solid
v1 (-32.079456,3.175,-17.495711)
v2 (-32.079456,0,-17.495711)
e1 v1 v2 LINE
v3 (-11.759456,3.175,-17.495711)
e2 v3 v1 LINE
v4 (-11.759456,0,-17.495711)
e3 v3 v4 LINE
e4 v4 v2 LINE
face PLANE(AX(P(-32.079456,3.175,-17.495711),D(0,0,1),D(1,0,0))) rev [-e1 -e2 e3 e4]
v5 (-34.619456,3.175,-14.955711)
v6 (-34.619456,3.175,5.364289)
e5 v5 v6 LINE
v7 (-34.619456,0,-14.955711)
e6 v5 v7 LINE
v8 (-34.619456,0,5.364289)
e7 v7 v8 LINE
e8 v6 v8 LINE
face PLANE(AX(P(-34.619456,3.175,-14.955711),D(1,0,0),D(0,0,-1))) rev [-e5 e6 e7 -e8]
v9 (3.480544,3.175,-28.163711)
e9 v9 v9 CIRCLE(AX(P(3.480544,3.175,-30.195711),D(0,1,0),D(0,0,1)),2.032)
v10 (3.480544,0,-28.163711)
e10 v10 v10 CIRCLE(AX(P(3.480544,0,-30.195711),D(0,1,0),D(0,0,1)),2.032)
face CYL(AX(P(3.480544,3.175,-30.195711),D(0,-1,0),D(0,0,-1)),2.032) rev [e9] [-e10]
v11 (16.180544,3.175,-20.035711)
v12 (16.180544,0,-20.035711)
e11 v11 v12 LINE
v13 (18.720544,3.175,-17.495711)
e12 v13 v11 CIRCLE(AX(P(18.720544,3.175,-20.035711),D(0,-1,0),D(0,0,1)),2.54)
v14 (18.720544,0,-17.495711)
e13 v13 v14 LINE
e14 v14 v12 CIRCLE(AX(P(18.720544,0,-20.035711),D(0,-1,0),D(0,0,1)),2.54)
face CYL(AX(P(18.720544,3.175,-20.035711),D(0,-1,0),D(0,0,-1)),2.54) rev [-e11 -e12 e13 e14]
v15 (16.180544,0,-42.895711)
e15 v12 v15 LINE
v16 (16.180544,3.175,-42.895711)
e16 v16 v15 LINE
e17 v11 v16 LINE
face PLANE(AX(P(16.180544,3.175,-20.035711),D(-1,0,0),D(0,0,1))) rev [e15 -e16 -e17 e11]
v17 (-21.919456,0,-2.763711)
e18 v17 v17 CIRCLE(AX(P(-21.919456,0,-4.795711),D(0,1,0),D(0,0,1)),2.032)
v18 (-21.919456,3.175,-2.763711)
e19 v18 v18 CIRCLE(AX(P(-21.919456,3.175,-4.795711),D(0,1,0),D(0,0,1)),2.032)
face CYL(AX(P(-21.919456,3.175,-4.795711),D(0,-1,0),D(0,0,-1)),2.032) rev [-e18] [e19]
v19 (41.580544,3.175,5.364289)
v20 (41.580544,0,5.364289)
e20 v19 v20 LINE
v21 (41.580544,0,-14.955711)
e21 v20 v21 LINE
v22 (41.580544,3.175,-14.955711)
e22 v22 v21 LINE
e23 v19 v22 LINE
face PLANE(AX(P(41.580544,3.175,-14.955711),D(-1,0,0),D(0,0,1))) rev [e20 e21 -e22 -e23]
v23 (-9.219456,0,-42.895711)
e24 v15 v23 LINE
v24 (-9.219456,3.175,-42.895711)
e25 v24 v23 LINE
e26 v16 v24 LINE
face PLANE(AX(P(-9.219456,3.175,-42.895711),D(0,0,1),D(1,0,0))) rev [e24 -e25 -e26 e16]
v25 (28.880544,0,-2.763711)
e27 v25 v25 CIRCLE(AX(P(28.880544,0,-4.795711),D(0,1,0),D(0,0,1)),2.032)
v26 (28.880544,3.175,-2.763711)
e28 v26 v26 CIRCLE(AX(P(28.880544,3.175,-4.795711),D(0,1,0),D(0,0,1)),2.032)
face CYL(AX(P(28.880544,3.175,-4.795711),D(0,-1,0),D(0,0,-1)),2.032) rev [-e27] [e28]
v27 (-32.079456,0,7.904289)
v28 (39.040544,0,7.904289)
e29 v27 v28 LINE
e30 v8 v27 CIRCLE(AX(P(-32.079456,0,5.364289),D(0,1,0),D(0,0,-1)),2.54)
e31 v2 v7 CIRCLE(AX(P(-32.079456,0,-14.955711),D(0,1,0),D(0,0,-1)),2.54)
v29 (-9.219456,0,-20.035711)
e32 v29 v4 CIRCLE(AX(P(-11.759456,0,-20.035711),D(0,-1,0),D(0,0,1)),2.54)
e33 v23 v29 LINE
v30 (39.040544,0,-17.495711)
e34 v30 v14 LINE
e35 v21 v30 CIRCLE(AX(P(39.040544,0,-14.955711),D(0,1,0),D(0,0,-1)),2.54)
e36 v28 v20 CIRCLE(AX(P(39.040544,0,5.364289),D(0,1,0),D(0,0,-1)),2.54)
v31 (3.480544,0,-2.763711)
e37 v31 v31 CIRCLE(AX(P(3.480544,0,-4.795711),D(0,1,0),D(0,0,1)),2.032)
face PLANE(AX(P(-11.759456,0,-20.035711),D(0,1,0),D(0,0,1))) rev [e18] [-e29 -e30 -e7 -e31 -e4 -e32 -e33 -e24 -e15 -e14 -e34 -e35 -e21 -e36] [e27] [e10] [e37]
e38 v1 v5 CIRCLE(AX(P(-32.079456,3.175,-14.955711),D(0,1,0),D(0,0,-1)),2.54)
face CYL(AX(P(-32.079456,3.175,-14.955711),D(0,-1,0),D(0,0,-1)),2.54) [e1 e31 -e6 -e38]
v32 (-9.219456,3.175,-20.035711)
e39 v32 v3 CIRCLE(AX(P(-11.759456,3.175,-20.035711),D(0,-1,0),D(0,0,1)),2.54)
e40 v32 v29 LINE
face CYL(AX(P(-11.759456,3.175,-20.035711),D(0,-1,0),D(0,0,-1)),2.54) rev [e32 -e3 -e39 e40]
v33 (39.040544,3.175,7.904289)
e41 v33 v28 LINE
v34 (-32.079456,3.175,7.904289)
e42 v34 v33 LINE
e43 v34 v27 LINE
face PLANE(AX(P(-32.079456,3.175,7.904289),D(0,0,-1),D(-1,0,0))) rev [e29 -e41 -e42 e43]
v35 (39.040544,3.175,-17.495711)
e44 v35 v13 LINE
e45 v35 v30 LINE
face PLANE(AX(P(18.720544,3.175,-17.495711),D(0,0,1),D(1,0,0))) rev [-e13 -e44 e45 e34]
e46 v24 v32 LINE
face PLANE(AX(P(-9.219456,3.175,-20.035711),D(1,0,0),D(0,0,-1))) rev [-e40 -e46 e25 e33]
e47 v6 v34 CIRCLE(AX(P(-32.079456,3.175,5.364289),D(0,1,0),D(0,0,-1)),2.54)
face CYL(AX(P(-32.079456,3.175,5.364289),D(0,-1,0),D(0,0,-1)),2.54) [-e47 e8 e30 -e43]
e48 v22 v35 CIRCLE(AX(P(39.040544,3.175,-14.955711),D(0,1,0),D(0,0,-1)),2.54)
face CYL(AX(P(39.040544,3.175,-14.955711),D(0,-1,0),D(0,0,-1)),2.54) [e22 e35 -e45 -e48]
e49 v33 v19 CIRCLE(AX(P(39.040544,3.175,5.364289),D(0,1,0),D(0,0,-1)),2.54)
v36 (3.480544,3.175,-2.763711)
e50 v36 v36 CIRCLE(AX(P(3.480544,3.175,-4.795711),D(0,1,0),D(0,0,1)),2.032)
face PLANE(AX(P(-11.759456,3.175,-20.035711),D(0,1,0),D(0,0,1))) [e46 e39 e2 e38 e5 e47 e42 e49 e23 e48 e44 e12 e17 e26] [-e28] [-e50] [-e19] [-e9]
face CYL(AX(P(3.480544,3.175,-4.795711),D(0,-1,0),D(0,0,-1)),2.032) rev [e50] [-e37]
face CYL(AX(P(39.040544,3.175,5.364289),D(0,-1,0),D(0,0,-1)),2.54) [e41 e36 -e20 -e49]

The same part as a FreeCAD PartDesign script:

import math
import FreeCAD as App
import Part
import Sketcher

V = App.Vector
Q = App.Units.Quantity

doc = App.newDocument("Part")
body = doc.addObject("PartDesign::Body", "Body")

# Sketch on XZ plane
sketch1 = body.newObject("Sketcher::SketchObject", "Sketch")
sketch1.AttachmentSupport = (doc.getObject("XZ_Plane"), [""])
sketch1.MapMode = "FlatFace"
sketch1.addGeometry(Part.LineSegment(V(39, -17.5, 0), V(18.7, -17.5, 0)), False)
sketch1.addGeometry(Part.ArcOfCircle(Part.Circle(V(18.7, -20, 0), V(0, 0, 1), 2.5), math.radians(90), math.radians(180)), False)
sketch1.addGeometry(Part.LineSegment(V(16.2, -20, 0), V(16.2, -42.9, 0)), False)
sketch1.addGeometry(Part.LineSegment(V(16.2, -42.9, 0), V(-9.2, -42.9, 0)), False)
sketch1.addGeometry(Part.LineSegment(V(-9.2, -42.9, 0), V(-9.2, -20, 0)), False)
sketch1.addGeometry(Part.ArcOfCircle(Part.Circle(V(-11.8, -20, 0), V(0, 0, 1), 2.5), math.radians(0), math.radians(90)), False)
sketch1.addGeometry(Part.LineSegment(V(-11.8, -17.5, 0), V(-32.1, -17.5, 0)), False)
sketch1.addGeometry(Part.ArcOfCircle(Part.Circle(V(-32.1, -15, 0), V(0, 0, 1), 2.5), math.radians(-180), math.radians(-90)), False)
sketch1.addGeometry(Part.LineSegment(V(-34.6, -15, 0), V(-34.6, 5.4, 0)), False)
sketch1.addGeometry(Part.ArcOfCircle(Part.Circle(V(-32.1, 5.4, 0), V(0, 0, 1), 2.5), math.radians(90), math.radians(180)), False)
sketch1.addGeometry(Part.LineSegment(V(-32.1, 7.9, 0), V(39, 7.9, 0)), False)
sketch1.addGeometry(Part.ArcOfCircle(Part.Circle(V(39, 5.4, 0), V(0, 0, 1), 2.5), math.radians(0), math.radians(90)), False)
sketch1.addGeometry(Part.LineSegment(V(41.6, 5.4, 0), V(41.6, -15, 0)), False)
sketch1.addGeometry(Part.ArcOfCircle(Part.Circle(V(39, -15, 0), V(0, 0, 1), 2.5), math.radians(-90), math.radians(0)), False)
sketch1.addGeometry(Part.Circle(V(28.9, -4.8, 0), V(0, 0, 1), 2), False)
sketch1.addGeometry(Part.Circle(V(3.5, -4.8, 0), V(0, 0, 1), 2), False)
sketch1.addGeometry(Part.Circle(V(-21.9, -4.8, 0), V(0, 0, 1), 2), False)
sketch1.addGeometry(Part.Circle(V(3.5, -30.2, 0), V(0, 0, 1), 2), False)
sketch1.addConstraint(Sketcher.Constraint("Tangent", 0, 2, 1, 1))
sketch1.addConstraint(Sketcher.Constraint("Tangent", 1, 2, 2, 1))
sketch1.addConstraint(Sketcher.Constraint("Coincident", 2, 2, 3, 1))
sketch1.addConstraint(Sketcher.Constraint("Coincident", 3, 2, 4, 1))
sketch1.addConstraint(Sketcher.Constraint("Tangent", 4, 2, 5, 1))
sketch1.addConstraint(Sketcher.Constraint("Tangent", 5, 2, 6, 1))
sketch1.addConstraint(Sketcher.Constraint("Tangent", 6, 2, 7, 2))
sketch1.addConstraint(Sketcher.Constraint("Tangent", 7, 1, 8, 1))
sketch1.addConstraint(Sketcher.Constraint("Tangent", 8, 2, 9, 2))
sketch1.addConstraint(Sketcher.Constraint("Tangent", 9, 1, 10, 1))
sketch1.addConstraint(Sketcher.Constraint("Tangent", 10, 2, 11, 2))
sketch1.addConstraint(Sketcher.Constraint("Tangent", 11, 1, 12, 1))
sketch1.addConstraint(Sketcher.Constraint("Tangent", 12, 2, 13, 2))
sketch1.addConstraint(Sketcher.Constraint("Tangent", 13, 1, 0, 1))
sketch1.addConstraint(Sketcher.Constraint("Horizontal", 0))
sketch1.addConstraint(Sketcher.Constraint("Vertical", 2))
sketch1.addConstraint(Sketcher.Constraint("Horizontal", 3))
sketch1.addConstraint(Sketcher.Constraint("Vertical", 4))
sketch1.addConstraint(Sketcher.Constraint("Horizontal", 6))
sketch1.addConstraint(Sketcher.Constraint("Vertical", 8))
sketch1.addConstraint(Sketcher.Constraint("Horizontal", 10))
sketch1.addConstraint(Sketcher.Constraint("Vertical", 12))
sketch1.addConstraint(Sketcher.Constraint("Equal", 1, 5))
sketch1.addConstraint(Sketcher.Constraint("Equal", 5, 7))
sketch1.addConstraint(Sketcher.Constraint("Equal", 7, 9))
sketch1.addConstraint(Sketcher.Constraint("Equal", 9, 11))
sketch1.addConstraint(Sketcher.Constraint("Equal", 11, 13))
sketch1.addConstraint(Sketcher.Constraint("Equal", 14, 15))
sketch1.addConstraint(Sketcher.Constraint("Equal", 15, 16))
sketch1.addConstraint(Sketcher.Constraint("Equal", 16, 17))
sketch1.addConstraint(Sketcher.Constraint("Horizontal", 1, 3, 5, 3))
sketch1.addConstraint(Sketcher.Constraint("Horizontal", 14, 3, 15, 3))
sketch1.addConstraint(Sketcher.Constraint("Horizontal", 15, 3, 16, 3))
sketch1.addConstraint(Sketcher.Constraint("Vertical", 15, 3, 17, 3))
sketch1.addConstraint(Sketcher.Constraint("Equal", 0, 6))
sketch1.addConstraint(Sketcher.Constraint("Equal", 6, 8))
sketch1.addConstraint(Sketcher.Constraint("Radius", 1, Q("0.1 in")))
sketch1.addConstraint(Sketcher.Constraint("Diameter", 14, Q("0.16 in")))
sketch1.addConstraint(Sketcher.Constraint("DistanceX", 3, 2, 3, 1, Q("1 in")))
sketch1.addConstraint(Sketcher.Constraint("DistanceX", 0, 2, 0, 1, Q("0.8 in")))
sketch1.addConstraint(Sketcher.Constraint("DistanceY", 2, 2, 2, 1, Q("0.9 in")))
sketch1.addConstraint(Sketcher.Constraint("DistanceX", 15, 3, 14, 3, Q("1 in")))
sketch1.addConstraint(Sketcher.Constraint("DistanceX", 16, 3, 15, 3, Q("1 in")))
sketch1.addConstraint(Sketcher.Constraint("DistanceY", 17, 3, 15, 3, Q("1 in")))
sketch1.addConstraint(Sketcher.Constraint("DistanceX", 14, 3, 11, 3, Q("0.4 in")))
sketch1.addConstraint(Sketcher.Constraint("DistanceY", 14, 3, 11, 3, Q("0.4 in")))
sketch1.addConstraint(Sketcher.Constraint("DistanceY", 1, 3, -1, 1, Q("20.035711 mm")))
sketch1.addConstraint(Sketcher.Constraint("DistanceX", -1, 1, 1, 3, Q("18.720544 mm")))
pad1 = body.newObject("PartDesign::Pad", "Pad")
pad1.Profile = sketch1
pad1.Length = Q("0.125 in")
pad1.Reversed = True

doc.recompute()
